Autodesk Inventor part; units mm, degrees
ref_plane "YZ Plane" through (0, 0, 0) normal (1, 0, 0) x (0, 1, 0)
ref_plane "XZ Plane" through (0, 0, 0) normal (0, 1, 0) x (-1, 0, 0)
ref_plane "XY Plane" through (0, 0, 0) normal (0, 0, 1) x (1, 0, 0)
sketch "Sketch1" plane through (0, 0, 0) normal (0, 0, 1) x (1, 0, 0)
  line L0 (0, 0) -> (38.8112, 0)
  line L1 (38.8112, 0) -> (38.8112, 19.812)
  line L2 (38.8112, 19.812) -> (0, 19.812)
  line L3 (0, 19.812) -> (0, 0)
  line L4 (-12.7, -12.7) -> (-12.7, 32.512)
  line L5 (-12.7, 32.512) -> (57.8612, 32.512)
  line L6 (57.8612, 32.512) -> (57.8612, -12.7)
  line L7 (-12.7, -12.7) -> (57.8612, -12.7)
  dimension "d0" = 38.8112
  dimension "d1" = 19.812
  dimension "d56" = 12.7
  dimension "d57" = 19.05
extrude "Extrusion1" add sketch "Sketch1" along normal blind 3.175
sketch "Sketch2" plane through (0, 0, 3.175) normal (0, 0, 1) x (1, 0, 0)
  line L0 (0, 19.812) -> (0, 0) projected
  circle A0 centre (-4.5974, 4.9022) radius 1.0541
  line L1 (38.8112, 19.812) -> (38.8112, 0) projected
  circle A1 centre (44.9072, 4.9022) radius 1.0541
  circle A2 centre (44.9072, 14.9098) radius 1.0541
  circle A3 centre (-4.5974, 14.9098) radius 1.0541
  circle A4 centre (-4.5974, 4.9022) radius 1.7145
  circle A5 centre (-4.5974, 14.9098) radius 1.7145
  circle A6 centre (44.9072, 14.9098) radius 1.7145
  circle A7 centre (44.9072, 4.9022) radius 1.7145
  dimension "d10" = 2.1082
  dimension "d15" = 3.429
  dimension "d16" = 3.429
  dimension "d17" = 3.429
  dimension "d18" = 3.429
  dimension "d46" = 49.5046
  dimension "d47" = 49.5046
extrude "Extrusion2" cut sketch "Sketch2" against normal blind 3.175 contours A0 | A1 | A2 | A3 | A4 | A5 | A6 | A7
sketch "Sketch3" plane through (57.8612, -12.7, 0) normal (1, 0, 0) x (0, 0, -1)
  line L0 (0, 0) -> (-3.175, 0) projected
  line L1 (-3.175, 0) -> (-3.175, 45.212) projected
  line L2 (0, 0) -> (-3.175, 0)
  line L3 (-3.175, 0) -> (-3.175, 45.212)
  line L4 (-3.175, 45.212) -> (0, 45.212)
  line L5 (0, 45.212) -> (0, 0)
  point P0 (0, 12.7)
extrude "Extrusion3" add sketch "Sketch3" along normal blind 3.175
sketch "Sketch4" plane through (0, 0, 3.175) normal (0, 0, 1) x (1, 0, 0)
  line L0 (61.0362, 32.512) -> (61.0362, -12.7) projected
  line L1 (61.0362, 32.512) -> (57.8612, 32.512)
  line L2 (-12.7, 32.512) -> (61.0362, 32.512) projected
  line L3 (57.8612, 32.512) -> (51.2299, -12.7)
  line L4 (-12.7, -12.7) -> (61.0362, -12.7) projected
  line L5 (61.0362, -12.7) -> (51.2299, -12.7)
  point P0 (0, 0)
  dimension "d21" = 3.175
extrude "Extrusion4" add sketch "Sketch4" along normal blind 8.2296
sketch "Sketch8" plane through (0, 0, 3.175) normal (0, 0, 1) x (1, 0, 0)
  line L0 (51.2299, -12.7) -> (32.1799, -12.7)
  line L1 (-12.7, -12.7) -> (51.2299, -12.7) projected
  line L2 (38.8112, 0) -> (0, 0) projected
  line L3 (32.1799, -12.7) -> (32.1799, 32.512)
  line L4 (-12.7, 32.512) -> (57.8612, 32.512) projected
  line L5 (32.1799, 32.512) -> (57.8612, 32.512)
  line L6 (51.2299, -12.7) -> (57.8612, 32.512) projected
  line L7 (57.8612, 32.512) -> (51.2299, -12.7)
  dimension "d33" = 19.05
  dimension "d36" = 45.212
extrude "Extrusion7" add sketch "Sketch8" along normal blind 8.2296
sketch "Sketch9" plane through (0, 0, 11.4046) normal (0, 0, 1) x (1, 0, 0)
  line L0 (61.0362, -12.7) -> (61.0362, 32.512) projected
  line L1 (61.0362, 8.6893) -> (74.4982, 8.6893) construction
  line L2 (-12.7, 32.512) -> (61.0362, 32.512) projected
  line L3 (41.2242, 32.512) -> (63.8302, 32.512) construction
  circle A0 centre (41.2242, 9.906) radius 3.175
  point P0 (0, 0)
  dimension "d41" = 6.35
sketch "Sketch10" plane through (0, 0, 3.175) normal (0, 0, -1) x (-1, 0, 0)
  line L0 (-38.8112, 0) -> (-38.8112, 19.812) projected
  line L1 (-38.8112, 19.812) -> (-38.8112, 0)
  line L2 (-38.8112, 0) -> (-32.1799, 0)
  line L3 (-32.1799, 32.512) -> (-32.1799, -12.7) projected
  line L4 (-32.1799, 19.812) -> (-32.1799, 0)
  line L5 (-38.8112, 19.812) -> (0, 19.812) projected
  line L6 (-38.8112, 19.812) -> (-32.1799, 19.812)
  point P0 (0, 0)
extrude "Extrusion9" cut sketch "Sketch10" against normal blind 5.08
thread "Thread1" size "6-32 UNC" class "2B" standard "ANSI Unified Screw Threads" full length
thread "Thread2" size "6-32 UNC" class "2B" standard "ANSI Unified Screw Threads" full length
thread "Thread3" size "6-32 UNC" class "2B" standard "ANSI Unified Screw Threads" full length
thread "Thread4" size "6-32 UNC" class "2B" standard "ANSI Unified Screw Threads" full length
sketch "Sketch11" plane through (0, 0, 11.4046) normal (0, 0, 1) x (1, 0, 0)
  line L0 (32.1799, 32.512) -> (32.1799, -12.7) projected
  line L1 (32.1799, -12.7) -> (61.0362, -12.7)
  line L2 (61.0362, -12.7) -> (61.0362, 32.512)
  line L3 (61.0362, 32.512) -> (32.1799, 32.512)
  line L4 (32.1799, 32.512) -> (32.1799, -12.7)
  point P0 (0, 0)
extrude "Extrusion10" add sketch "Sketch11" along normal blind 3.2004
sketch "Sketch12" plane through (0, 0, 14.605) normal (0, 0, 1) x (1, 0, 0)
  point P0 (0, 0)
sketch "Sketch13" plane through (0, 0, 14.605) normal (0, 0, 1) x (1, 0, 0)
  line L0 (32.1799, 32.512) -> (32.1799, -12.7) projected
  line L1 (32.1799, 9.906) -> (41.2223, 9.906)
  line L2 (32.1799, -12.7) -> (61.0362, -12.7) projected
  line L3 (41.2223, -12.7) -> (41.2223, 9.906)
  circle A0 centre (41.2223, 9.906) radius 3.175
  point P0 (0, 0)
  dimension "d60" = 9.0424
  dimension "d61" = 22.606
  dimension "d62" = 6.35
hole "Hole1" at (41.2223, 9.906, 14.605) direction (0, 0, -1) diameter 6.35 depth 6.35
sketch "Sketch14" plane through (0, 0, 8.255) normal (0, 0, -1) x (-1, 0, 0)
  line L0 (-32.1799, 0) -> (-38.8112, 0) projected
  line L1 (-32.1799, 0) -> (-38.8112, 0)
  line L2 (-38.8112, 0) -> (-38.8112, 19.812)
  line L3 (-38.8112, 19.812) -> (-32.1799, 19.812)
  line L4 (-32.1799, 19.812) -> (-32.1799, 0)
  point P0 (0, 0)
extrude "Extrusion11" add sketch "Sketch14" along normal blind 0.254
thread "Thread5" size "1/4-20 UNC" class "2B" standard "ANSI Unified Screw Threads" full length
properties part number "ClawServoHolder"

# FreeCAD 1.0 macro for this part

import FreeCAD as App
import Part
import Sketcher

V = App.Vector
Q = App.Units.Quantity

doc = App.newDocument("Part")
body = doc.addObject("PartDesign::Body", "Body")

sketch1 = body.newObject("Sketcher::SketchObject", "Sketch")
sketch1.AttachmentSupport = (doc.getObject("XY_Plane"), [""])
sketch1.MapMode = "FlatFace"
sketch1.addGeometry([
    Part.LineSegment(V(-13, 33, 0), V(-13, -13, 0)),
    Part.LineSegment(V(-13, -13, 0), V(58, -13, 0)),
    Part.LineSegment(V(58, -13, 0), V(58, 33, 0)),
    Part.LineSegment(V(58, 33, 0), V(-13, 33, 0)),
    Part.LineSegment(V(39, 0, 0), V(0, 0, 0)),
    Part.LineSegment(V(0, 0, 0), V(0, 20, 0)),
    Part.LineSegment(V(0, 20, 0), V(39, 20, 0)),
    Part.LineSegment(V(39, 20, 0), V(39, 0, 0)),
], False)
sketch1.addConstraint([
    Sketcher.Constraint("Coincident", 0, 2, 1, 1),
    Sketcher.Constraint("Coincident", 1, 2, 2, 1),
    Sketcher.Constraint("Coincident", 2, 2, 3, 1),
    Sketcher.Constraint("Coincident", 3, 2, 0, 1),
    Sketcher.Constraint("Coincident", 4, 2, 5, 1),
    Sketcher.Constraint("Coincident", 5, 2, 6, 1),
    Sketcher.Constraint("Coincident", 6, 2, 7, 1),
    Sketcher.Constraint("Coincident", 7, 2, 4, 1),
    Sketcher.Constraint("Vertical", 0),
    Sketcher.Constraint("Horizontal", 1),
    Sketcher.Constraint("Vertical", 2),
    Sketcher.Constraint("Horizontal", 3),
    Sketcher.Constraint("Horizontal", 4),
    Sketcher.Constraint("Vertical", 5),
    Sketcher.Constraint("Horizontal", 6),
    Sketcher.Constraint("Vertical", 7),
    Sketcher.Constraint("Coincident", 4, 2, -1, 1),
    Sketcher.Constraint("DistanceY", 5, 1, 5, 2, Q("0.78 in")),
    Sketcher.Constraint("DistanceX", 0, 2, -1, 1, Q("0.5 in")),
    Sketcher.Constraint("DistanceY", 0, 2, -1, 1, Q("0.5 in")),
    Sketcher.Constraint("DistanceY", 5, 2, 3, 2, Q("0.5 in")),
    Sketcher.Constraint("DistanceX", 4, 2, 4, 1, Q("1.528 in")),
    Sketcher.Constraint("DistanceX", 6, 2, 2, 2, Q("0.75 in")),
])
pad1 = body.newObject("PartDesign::Pad", "Pad")
pad1.Profile = sketch1
pad1.Length = Q("0.125 in")

sketch2 = body.newObject("Sketcher::SketchObject", "Sketch001")
sketch2.AttachmentSupport = (doc.getObject("XY_Plane"), [""])
sketch2.MapMode = "FlatFace"
sketch2.AttachmentOffset = App.Placement(V(0, 0, 0.125 * 25.4), App.Rotation())
sketch2.addGeometry([
    Part.Circle(V(-4.6, 4.9, 0), V(0, 0, 1), 1.7),
    Part.Circle(V(44.9, 4.9, 0), V(0, 0, 1), 1.7),
    Part.Circle(V(44.9, 14.9, 0), V(0, 0, 1), 1.7),
    Part.Circle(V(-4.6, 14.9, 0), V(0, 0, 1), 1.7),
], False)
sketch2.addConstraint([
    Sketcher.Constraint("Equal", 0, 1),
    Sketcher.Constraint("Equal", 1, 2),
    Sketcher.Constraint("Equal", 2, 3),
    Sketcher.Constraint("Horizontal", 0, 3, 1, 3),
    Sketcher.Constraint("Horizontal", 2, 3, 3, 3),
    Sketcher.Constraint("Vertical", 1, 3, 2, 3),
    Sketcher.Constraint("Vertical", 0, 3, 3, 3),
    Sketcher.Constraint("Diameter", 0, Q("0.135 in")),
    Sketcher.Constraint("DistanceX", 0, 3, 1, 3, Q("1.949 in")),
    Sketcher.Constraint("DistanceX", 0, 3, -1, 1, Q("0.181 in")),
    Sketcher.Constraint("DistanceY", -1, 1, 0, 3, Q("0.193 in")),
    Sketcher.Constraint("DistanceY", -1, 1, 2, 3, Q("0.587 in")),
])
pocket1 = body.newObject("PartDesign::Pocket", "Pocket")
pocket1.Profile = sketch2
pocket1.Length = Q("0.125 in")

sketch3 = body.newObject("Sketcher::SketchObject", "Sketch002")
sketch3.AttachmentSupport = (doc.getObject("YZ_Plane"), [""])
sketch3.MapMode = "FlatFace"
sketch3.AttachmentOffset = App.Placement(V(0, 0, 2.278 * 25.4), App.Rotation())
sketch3.addGeometry([
    Part.LineSegment(V(-12.7, 3.2, 0), V(-12.7, 0, 0)),
    Part.LineSegment(V(-12.7, 0, 0), V(32.5, 0, 0)),
    Part.LineSegment(V(32.5, 0, 0), V(32.5, 3.2, 0)),
    Part.LineSegment(V(32.5, 3.2, 0), V(-12.7, 3.2, 0)),
], False)
sketch3.addConstraint([
    Sketcher.Constraint("Coincident", 0, 2, 1, 1),
    Sketcher.Constraint("Coincident", 1, 2, 2, 1),
    Sketcher.Constraint("Coincident", 2, 2, 3, 1),
    Sketcher.Constraint("Coincident", 3, 2, 0, 1),
    Sketcher.Constraint("Vertical", 0),
    Sketcher.Constraint("Horizontal", 1),
    Sketcher.Constraint("Vertical", 2),
    Sketcher.Constraint("Horizontal", 3),
    Sketcher.Constraint("PointOnObject", 0, 2, -1),
    Sketcher.Constraint("DistanceX", 1, 1, 1, 2, Q("1.78 in")),
    Sketcher.Constraint("DistanceX", 0, 2, -1, 1, Q("0.5 in")),
    Sketcher.Constraint("DistanceY", 0, 2, 0, 1, Q("0.125 in")),
])
pad2 = body.newObject("PartDesign::Pad", "Pad001")
pad2.Profile = sketch3
pad2.Length = Q("0.125 in")

sketch4 = body.newObject("Sketcher::SketchObject", "Sketch003")
sketch4.AttachmentSupport = (doc.getObject("XY_Plane"), [""])
sketch4.MapMode = "FlatFace"
sketch4.AttachmentOffset = App.Placement(V(0, 0, 0.125 * 25.4), App.Rotation())
sketch4.addGeometry([
    Part.LineSegment(V(61, -12.7, 0), V(61, 32.5, 0)),
    Part.LineSegment(V(61, 32.5, 0), V(57.9, 32.5, 0)),
    Part.LineSegment(V(57.9, 32.5, 0), V(51.2, -12.7, 0)),
    Part.LineSegment(V(51.2, -12.7, 0), V(61, -12.7, 0)),
], False)
sketch4.addConstraint([
    Sketcher.Constraint("Coincident", 0, 2, 1, 1),
    Sketcher.Constraint("Coincident", 1, 2, 2, 1),
    Sketcher.Constraint("Coincident", 2, 2, 3, 1),
    Sketcher.Constraint("Coincident", 3, 2, 0, 1),
    Sketcher.Constraint("Vertical", 0),
    Sketcher.Constraint("Horizontal", 1),
    Sketcher.Constraint("Horizontal", 3),
    Sketcher.Constraint("DistanceX", 1, 2, 1, 1, Q("0.125 in")),
    Sketcher.Constraint("DistanceY", 0, 1, 0, 2, Q("1.78 in")),
    Sketcher.Constraint("DistanceY", 2, 2, -1, 1, Q("0.5 in")),
    Sketcher.Constraint("DistanceX", -1, 1, 0, 2, Q("2.403 in")),
    Sketcher.Constraint("DistanceX", 3, 1, 3, 2, 9.8063),
])
pad3 = body.newObject("PartDesign::Pad", "Pad002")
pad3.Profile = sketch4
pad3.Length = Q("0.324 in")

sketch5 = body.newObject("Sketcher::SketchObject", "Sketch004")
sketch5.AttachmentSupport = (doc.getObject("XY_Plane"), [""])
sketch5.MapMode = "FlatFace"
sketch5.AttachmentOffset = App.Placement(V(0, 0, 0.125 * 25.4), App.Rotation())
sketch5.addGeometry([
    Part.LineSegment(V(32, -13, 0), V(51, -13, 0)),
    Part.LineSegment(V(51, -13, 0), V(58, 33, 0)),
    Part.LineSegment(V(58, 33, 0), V(32, 33, 0)),
    Part.LineSegment(V(32, 33, 0), V(32, -13, 0)),
], False)
sketch5.addConstraint([
    Sketcher.Constraint("Coincident", 0, 2, 1, 1),
    Sketcher.Constraint("Coincident", 1, 2, 2, 1),
    Sketcher.Constraint("Coincident", 2, 2, 3, 1),
    Sketcher.Constraint("Coincident", 3, 2, 0, 1),
    Sketcher.Constraint("Horizontal", 0),
    Sketcher.Constraint("Horizontal", 2),
    Sketcher.Constraint("Vertical", 3),
    Sketcher.Constraint("DistanceX", 0, 1, 0, 2, Q("0.75 in")),
    Sketcher.Constraint("DistanceY", 3, 2, 3, 1, Q("1.78 in")),
    Sketcher.Constraint("DistanceY", 0, 2, -1, 1, Q("0.5 in")),
    Sketcher.Constraint("DistanceX", -1, 1, 1, 2, Q("2.278 in")),
    Sketcher.Constraint("DistanceX", 2, 2, 2, 1, 25.6813),
])
pad4 = body.newObject("PartDesign::Pad", "Pad003")
pad4.Profile = sketch5
pad4.Length = Q("0.324 in")

sketch6 = body.newObject("Sketcher::SketchObject", "Sketch005")
sketch6.AttachmentSupport = (doc.getObject("XY_Plane"), [""])
sketch6.MapMode = "FlatFace"
sketch6.AttachmentOffset = App.Placement(V(0, 0, 0.125 * 25.4), App.Rotation())
sketch6.addGeometry([
    Part.LineSegment(V(39, 20, 0), V(39, 0, 0)),
    Part.LineSegment(V(39, 0, 0), V(32, 0, 0)),
    Part.LineSegment(V(32, 0, 0), V(32, 20, 0)),
    Part.LineSegment(V(32, 20, 0), V(39, 20, 0)),
], False)
sketch6.addConstraint([
    Sketcher.Constraint("Coincident", 0, 2, 1, 1),
    Sketcher.Constraint("Coincident", 1, 2, 2, 1),
    Sketcher.Constraint("Coincident", 2, 2, 3, 1),
    Sketcher.Constraint("Coincident", 3, 2, 0, 1),
    Sketcher.Constraint("Vertical", 0),
    Sketcher.Constraint("Horizontal", 1),
    Sketcher.Constraint("Vertical", 2),
    Sketcher.Constraint("Horizontal", 3),
    Sketcher.Constraint("PointOnObject", 0, 2, -1),
    Sketcher.Constraint("DistanceY", 0, 2, 0, 1, Q("0.78 in")),
    Sketcher.Constraint("DistanceX", -1, 1, 0, 2, Q("1.528 in")),
    Sketcher.Constraint("DistanceX", 1, 2, 1, 1, 6.6313),
])
pocket2 = body.newObject("PartDesign::Pocket", "Pocket001")
pocket2.Profile = sketch6
pocket2.Length = Q("0.2 in")
pocket2.Reversed = True

sketch7 = body.newObject("Sketcher::SketchObject", "Sketch006")
sketch7.AttachmentSupport = (doc.getObject("XY_Plane"), [""])
sketch7.MapMode = "FlatFace"
sketch7.AttachmentOffset = App.Placement(V(0, 0, 0.449 * 25.4), App.Rotation())
sketch7.addGeometry([
    Part.LineSegment(V(61, 33, 0), V(32, 33, 0)),
    Part.LineSegment(V(32, 33, 0), V(32, -13, 0)),
    Part.LineSegment(V(32, -13, 0), V(61, -13, 0)),
    Part.LineSegment(V(61, -13, 0), V(61, 33, 0)),
], False)
sketch7.addConstraint([
    Sketcher.Constraint("Coincident", 0, 2, 1, 1),
    Sketcher.Constraint("Coincident", 1, 2, 2, 1),
    Sketcher.Constraint("Coincident", 2, 2, 3, 1),
    Sketcher.Constraint("Coincident", 3, 2, 0, 1),
    Sketcher.Constraint("Horizontal", 0),
    Sketcher.Constraint("Vertical", 1),
    Sketcher.Constraint("Horizontal", 2),
    Sketcher.Constraint("Vertical", 3),
    Sketcher.Constraint("DistanceY", 1, 2, 1, 1, Q("1.78 in")),
    Sketcher.Constraint("DistanceY", 1, 2, -1, 1, Q("0.5 in")),
    Sketcher.Constraint("DistanceX", -1, 1, 2, 2, Q("2.403 in")),
    Sketcher.Constraint("DistanceX", 0, 2, 0, 1, 28.8563),
])
pad5 = body.newObject("PartDesign::Pad", "Pad004")
pad5.Profile = sketch7
pad5.Length = Q("0.126 in")

sketch8 = body.newObject("Sketcher::SketchObject", "Sketch007")
sketch8.AttachmentSupport = (doc.getObject("XY_Plane"), [""])
sketch8.MapMode = "FlatFace"
sketch8.AttachmentOffset = App.Placement(V(0, 0, 0.575 * 25.4), App.Rotation())
sketch8.addGeometry(Part.Circle(V(41.2, 9.9, 0), V(0, 0, 1), 3.2), False)
sketch8.addConstraint([
    Sketcher.Constraint("Diameter", 0, Q("0.25 in")),
    Sketcher.Constraint("DistanceY", -1, 1, 0, 3, Q("0.39 in")),
    Sketcher.Constraint("DistanceX", -1, 1, 0, 3, 41.2223),
])
doc.recompute()
hole = body.newObject("PartDesign::Hole", "Hole")
hole.Profile = sketch8
hole.ThreadType = "None"
hole.Diameter = Q("0.25 in")
hole.DepthType = "Dimension"
hole.Depth = Q("0.25 in")
hole.DrillPoint = "Flat"

sketch9 = body.newObject("Sketcher::SketchObject", "Sketch008")
sketch9.AttachmentSupport = (doc.getObject("XY_Plane"), [""])
sketch9.MapMode = "FlatFace"
sketch9.AttachmentOffset = App.Placement(V(0, 0, 0.325 * 25.4), App.Rotation())
sketch9.addGeometry([
    Part.LineSegment(V(39, 0, 0), V(32, 0, 0)),
    Part.LineSegment(V(32, 0, 0), V(32, 20, 0)),
    Part.LineSegment(V(32, 20, 0), V(39, 20, 0)),
    Part.LineSegment(V(39, 20, 0), V(39, 0, 0)),
], False)
sketch9.addConstraint([
    Sketcher.Constraint("Coincident", 0, 2, 1, 1),
    Sketcher.Constraint("Coincident", 1, 2, 2, 1),
    Sketcher.Constraint("Coincident", 2, 2, 3, 1),
    Sketcher.Constraint("Coincident", 3, 2, 0, 1),
    Sketcher.Constraint("Horizontal", 0),
    Sketcher.Constraint("Vertical", 1),
    Sketcher.Constraint("Horizontal", 2),
    Sketcher.Constraint("Vertical", 3),
    Sketcher.Constraint("PointOnObject", 0, 2, -1),
    Sketcher.Constraint("DistanceY", 1, 1, 1, 2, Q("0.78 in")),
    Sketcher.Constraint("DistanceX", -1, 1, 2, 2, Q("1.528 in")),
    Sketcher.Constraint("DistanceX", 0, 2, 0, 1, 6.6313),
])
pad6 = body.newObject("PartDesign::Pad", "Pad005")
pad6.Profile = sketch9
pad6.Length = Q("0.01 in")
pad6.Reversed = True

doc.recompute()
